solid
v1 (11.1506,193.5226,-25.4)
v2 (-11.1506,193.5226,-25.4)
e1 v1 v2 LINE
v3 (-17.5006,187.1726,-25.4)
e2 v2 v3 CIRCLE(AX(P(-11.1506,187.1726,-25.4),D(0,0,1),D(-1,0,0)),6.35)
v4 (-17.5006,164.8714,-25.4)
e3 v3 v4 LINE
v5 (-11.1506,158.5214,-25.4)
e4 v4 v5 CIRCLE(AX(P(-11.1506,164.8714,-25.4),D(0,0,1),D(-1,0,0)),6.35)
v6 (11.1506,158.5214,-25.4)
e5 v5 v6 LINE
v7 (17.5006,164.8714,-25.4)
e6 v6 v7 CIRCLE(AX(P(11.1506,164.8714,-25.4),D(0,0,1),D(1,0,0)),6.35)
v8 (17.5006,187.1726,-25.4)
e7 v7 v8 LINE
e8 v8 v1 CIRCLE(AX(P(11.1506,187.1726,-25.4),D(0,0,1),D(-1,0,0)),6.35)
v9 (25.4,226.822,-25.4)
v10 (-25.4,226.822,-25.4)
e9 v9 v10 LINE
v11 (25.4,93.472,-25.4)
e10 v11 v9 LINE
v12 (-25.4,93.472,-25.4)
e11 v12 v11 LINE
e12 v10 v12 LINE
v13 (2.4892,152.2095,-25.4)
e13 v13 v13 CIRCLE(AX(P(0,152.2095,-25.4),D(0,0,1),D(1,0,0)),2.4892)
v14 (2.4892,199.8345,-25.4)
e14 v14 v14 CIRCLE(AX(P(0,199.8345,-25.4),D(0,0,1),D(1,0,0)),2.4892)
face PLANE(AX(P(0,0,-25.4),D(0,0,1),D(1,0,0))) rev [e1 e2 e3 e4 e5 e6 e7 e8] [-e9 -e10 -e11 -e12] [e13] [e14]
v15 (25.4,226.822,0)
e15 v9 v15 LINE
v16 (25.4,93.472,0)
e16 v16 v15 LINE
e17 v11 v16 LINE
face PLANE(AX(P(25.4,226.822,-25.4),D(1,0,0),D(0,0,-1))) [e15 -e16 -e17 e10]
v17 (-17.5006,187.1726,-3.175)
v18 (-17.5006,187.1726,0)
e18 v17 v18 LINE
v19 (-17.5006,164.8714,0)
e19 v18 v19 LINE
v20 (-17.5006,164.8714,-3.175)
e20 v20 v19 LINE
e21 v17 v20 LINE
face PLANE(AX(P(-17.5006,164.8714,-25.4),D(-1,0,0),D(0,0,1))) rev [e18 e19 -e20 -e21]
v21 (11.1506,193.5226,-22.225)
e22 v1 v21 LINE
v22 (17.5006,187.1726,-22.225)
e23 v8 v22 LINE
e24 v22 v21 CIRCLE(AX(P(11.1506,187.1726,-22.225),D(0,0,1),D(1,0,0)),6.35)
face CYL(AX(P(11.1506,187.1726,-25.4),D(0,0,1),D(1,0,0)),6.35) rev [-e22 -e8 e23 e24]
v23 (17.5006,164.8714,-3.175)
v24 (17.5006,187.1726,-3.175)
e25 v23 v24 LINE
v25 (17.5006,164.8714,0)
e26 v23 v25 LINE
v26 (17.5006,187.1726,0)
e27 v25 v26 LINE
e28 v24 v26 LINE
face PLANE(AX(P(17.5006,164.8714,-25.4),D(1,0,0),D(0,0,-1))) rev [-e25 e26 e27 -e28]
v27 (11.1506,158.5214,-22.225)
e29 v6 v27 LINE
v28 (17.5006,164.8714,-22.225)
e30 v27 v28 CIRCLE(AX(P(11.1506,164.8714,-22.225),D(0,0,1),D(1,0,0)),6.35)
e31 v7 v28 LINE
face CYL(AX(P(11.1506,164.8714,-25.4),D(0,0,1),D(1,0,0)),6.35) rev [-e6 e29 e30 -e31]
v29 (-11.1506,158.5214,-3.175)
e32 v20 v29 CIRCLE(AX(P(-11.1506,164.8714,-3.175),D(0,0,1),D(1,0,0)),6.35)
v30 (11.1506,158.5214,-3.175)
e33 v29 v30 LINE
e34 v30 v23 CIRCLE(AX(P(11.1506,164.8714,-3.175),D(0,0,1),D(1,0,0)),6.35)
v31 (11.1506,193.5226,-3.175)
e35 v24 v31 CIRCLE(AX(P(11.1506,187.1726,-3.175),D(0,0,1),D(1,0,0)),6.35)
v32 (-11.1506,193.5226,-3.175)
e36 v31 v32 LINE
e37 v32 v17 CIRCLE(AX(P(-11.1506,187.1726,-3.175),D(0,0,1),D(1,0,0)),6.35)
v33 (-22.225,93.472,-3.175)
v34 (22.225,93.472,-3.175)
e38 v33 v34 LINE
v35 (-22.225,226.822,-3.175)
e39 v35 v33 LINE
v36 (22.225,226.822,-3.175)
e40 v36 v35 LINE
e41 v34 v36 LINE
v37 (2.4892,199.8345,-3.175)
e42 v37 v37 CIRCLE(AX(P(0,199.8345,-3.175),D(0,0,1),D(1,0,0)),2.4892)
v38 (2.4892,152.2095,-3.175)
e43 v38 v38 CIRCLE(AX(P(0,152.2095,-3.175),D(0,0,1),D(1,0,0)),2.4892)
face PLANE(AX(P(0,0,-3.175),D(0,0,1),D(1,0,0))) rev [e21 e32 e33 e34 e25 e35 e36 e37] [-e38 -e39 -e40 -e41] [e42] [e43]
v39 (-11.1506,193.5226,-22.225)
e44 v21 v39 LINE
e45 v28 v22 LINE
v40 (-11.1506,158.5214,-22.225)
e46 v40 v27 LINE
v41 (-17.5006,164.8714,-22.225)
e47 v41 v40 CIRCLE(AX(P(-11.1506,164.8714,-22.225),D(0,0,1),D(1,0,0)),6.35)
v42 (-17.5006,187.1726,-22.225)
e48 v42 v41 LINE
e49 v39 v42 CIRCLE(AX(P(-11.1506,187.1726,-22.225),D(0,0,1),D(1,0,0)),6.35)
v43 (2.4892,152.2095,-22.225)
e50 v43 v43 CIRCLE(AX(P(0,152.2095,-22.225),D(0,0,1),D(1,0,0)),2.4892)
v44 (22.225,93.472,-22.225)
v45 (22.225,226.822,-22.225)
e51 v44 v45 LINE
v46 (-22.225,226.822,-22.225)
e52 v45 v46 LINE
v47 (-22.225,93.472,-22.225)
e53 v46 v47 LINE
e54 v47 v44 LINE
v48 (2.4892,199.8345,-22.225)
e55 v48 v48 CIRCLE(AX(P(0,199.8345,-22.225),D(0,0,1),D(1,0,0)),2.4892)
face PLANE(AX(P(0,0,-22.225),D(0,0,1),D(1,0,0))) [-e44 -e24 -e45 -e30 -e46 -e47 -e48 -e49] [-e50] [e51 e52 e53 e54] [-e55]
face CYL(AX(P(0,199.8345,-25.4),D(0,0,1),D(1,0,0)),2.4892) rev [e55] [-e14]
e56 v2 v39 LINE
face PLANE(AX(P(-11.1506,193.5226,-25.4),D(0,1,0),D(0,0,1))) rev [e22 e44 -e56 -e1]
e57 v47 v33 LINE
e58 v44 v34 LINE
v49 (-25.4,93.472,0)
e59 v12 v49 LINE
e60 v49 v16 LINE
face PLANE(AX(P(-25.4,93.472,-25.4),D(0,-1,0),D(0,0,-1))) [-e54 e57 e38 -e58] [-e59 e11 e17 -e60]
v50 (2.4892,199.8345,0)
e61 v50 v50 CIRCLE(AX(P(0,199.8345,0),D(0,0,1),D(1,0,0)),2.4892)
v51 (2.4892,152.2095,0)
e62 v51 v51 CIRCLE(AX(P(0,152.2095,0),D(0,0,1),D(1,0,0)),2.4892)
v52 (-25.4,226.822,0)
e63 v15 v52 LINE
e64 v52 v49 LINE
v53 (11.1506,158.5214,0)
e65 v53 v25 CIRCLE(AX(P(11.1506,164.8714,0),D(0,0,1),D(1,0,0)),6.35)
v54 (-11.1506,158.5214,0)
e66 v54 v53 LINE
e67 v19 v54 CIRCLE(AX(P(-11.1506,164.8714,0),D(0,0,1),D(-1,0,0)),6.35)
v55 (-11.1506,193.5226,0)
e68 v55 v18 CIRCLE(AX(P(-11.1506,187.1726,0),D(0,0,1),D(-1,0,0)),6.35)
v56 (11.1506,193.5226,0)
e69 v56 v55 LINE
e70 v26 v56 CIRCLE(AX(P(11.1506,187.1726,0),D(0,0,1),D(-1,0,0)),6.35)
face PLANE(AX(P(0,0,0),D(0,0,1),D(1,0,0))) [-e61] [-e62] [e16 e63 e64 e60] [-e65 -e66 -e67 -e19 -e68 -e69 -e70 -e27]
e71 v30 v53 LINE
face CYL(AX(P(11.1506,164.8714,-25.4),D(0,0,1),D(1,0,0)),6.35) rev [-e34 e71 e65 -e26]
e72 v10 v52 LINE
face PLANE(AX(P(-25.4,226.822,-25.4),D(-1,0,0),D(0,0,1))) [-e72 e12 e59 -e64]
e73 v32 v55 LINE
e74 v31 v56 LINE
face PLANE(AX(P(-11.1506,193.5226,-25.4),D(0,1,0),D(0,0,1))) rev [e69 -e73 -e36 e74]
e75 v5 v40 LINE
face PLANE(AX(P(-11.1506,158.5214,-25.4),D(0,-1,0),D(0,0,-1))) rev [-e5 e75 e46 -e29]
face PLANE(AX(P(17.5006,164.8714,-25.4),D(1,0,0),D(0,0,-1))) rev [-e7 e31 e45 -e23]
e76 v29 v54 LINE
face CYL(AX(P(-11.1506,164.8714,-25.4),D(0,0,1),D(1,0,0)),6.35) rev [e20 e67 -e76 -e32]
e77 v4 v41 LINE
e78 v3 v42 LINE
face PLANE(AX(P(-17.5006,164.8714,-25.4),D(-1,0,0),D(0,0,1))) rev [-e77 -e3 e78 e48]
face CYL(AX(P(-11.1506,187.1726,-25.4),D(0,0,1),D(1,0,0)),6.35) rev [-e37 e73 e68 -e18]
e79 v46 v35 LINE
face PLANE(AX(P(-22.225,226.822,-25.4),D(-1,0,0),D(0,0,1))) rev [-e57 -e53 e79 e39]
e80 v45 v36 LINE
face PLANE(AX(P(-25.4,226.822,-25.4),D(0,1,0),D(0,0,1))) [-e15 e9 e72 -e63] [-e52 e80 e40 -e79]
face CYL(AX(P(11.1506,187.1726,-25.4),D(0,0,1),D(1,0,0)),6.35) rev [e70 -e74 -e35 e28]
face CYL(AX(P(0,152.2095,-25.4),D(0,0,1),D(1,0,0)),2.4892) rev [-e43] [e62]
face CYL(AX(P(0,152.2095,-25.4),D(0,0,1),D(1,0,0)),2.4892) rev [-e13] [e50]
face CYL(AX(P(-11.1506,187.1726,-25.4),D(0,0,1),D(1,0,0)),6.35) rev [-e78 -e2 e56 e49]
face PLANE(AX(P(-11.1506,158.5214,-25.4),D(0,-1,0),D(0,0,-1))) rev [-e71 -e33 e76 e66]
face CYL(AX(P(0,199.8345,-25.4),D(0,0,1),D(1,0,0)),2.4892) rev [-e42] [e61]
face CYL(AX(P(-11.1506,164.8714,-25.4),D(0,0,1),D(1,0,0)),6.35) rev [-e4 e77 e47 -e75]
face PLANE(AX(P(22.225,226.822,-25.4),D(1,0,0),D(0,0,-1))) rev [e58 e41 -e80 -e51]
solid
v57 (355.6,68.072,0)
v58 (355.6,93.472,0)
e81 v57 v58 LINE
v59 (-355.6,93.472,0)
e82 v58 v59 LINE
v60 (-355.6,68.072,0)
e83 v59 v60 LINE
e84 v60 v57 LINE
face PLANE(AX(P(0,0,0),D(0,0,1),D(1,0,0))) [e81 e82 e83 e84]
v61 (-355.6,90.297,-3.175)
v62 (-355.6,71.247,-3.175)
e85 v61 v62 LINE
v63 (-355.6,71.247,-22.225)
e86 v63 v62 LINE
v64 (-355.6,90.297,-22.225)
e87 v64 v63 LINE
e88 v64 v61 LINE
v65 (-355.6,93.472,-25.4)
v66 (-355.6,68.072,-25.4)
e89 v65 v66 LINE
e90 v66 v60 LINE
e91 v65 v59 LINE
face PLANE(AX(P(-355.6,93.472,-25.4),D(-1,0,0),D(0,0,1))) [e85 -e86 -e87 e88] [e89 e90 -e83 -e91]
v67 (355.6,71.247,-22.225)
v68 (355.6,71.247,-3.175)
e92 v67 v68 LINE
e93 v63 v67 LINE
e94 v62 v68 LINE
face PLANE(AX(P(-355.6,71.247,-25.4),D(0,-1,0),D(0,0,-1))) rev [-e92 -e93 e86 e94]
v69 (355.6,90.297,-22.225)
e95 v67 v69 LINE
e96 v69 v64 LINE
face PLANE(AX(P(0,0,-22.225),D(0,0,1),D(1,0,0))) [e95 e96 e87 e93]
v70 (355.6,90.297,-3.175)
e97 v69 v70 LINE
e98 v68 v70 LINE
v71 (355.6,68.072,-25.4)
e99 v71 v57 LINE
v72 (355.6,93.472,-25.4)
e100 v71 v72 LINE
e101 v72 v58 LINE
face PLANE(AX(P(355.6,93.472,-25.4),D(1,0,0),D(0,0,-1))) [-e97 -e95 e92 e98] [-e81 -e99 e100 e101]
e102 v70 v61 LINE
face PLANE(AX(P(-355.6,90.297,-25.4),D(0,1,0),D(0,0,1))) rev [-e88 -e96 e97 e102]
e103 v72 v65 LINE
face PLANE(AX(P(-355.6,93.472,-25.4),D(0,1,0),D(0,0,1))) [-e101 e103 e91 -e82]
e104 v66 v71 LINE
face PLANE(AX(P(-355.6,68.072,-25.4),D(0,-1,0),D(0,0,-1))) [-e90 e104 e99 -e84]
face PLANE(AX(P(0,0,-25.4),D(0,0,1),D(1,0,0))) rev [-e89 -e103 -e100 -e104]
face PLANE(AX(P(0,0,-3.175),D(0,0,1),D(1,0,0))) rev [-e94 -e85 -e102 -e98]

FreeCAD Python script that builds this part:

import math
import FreeCAD as App
import Part
import Sketcher
from FreeCAD import Vector
Q = App.Units.Quantity


def faces_at(feature, points):
    """Names of the faces that lie closest to the given points."""
    faces = feature.Shape.Faces
    near = lambda p: min(range(len(faces)), key=lambda i: faces[i].distToShape(Part.Vertex(*p))[0])
    return sorted({f"Face{near(p) + 1}" for p in points})


def add_polygon(sketch, points):
    """Adds a closed chain of lines whose ends are joined by coincident constraints."""
    first, n = sketch.GeometryCount, len(points)
    for a, b in zip(points, points[1:] + points[:1]):
        sketch.addGeometry(Part.LineSegment(App.Vector(*a, 0), App.Vector(*b, 0)), False)
    for i in range(n):
        sketch.addConstraint(Sketcher.Constraint("Coincident", first + i, 2, first + (i + 1) % n, 1))

doc = App.newDocument("Part")
body = doc.addObject("PartDesign::Body", "Body")

sketch1 = body.newObject("Sketcher::SketchObject", "Sketch")
sketch1.AttachmentSupport = (doc.getObject("XY_Plane"), [""])
sketch1.MapMode = "FlatFace"
add_polygon(sketch1, [(-355.6, 93.472), (-355.6, 68.072), (355.6, 68.072), (355.6, 93.472)])
sketch1.addConstraint([
    Sketcher.Constraint("Vertical", 0),
    Sketcher.Constraint("Horizontal", 1),
    Sketcher.Constraint("Vertical", 2),
    Sketcher.Constraint("Horizontal", 3),
    Sketcher.Constraint("DistanceX", 1, 1, 1, 2, Q("28 in")),
    Sketcher.Constraint("DistanceY", 0, 2, 0, 1, Q("1 in")),
    Sketcher.Constraint("DistanceX", 0, 2, -1, 1, Q("14 in")),
    Sketcher.Constraint("DistanceY", -1, 1, 0, 2, Q("2.68 in")),
])
pad1 = body.newObject("PartDesign::Pad", "Pad")
pad1.Profile = sketch1
pad1.Length = Q("1 in")
pad1.Reversed = True
doc.recompute()

thickness = body.newObject("PartDesign::Thickness", "Thickness")
thickness.Base = (pad1, faces_at(pad1, [(355.6, 80.772, -12.7), (-355.6, 80.772, -12.7)]))
thickness.Value = Q("0.125 in")
thickness.Reversed = True
thickness.Join = "Intersection"
body2 = doc.addObject("PartDesign::Body", "Body001")

sketch2 = body2.newObject("Sketcher::SketchObject", "Sketch001")
sketch2.AttachmentSupport = (doc.getObject("XY_Plane001"), [""])
sketch2.MapMode = "FlatFace"
add_polygon(sketch2, [(-25.4, 226.822), (-25.4, 93.472), (25.4, 93.472), (25.4, 226.822)])
sketch2.addConstraint([
    Sketcher.Constraint("Vertical", 0),
    Sketcher.Constraint("Horizontal", 1),
    Sketcher.Constraint("Vertical", 2),
    Sketcher.Constraint("Horizontal", 3),
    Sketcher.Constraint("DistanceX", 1, 1, 1, 2, Q("2 in")),
    Sketcher.Constraint("DistanceX", 0, 2, -1, 1, Q("1 in")),
    Sketcher.Constraint("DistanceY", 0, 2, 0, 1, Q("5.25 in")),
    Sketcher.Constraint("DistanceY", -1, 1, 0, 2, Q("3.68 in")),
])
pad2 = body2.newObject("PartDesign::Pad", "Pad001")
pad2.Profile = sketch2
pad2.Length = Q("1 in")
pad2.Reversed = True
doc.recompute()

thickness2 = body2.newObject("PartDesign::Thickness", "Thickness001")
thickness2.Base = (pad2, faces_at(pad2, [(0, 226.822, -12.7), (0, 93.472, -12.7)]))
thickness2.Value = Q("0.125 in")
thickness2.Reversed = True
thickness2.Join = "Intersection"

sketch3 = body2.newObject("Sketcher::SketchObject", "Sketch002")
sketch3.AttachmentSupport = (doc.getObject("XY_Plane001"), [""])
sketch3.MapMode = "FlatFace"
sketch3.addGeometry([
    Part.Circle(Vector(0, 199.8345, 0), Vector(0, 0, 1), 2.4892),
    Part.Circle(Vector(0, 152.2095, 0), Vector(0, 0, 1), 2.4892),
    Part.LineSegment(Vector(-11.1506, 158.5214, 0), Vector(11.1506, 158.5214, 0)),
    Part.ArcOfCircle(Part.Circle(Vector(11.1506, 164.8714, 0), Vector(0, 0, 1), 6.35), math.radians(-90), math.radians(0)),
    Part.LineSegment(Vector(17.5006, 164.8714, 0), Vector(17.5006, 187.1726, 0)),
    Part.ArcOfCircle(Part.Circle(Vector(11.1506, 187.1726, 0), Vector(0, 0, 1), 6.35), math.radians(0), math.radians(90)),
    Part.LineSegment(Vector(11.1506, 193.5226, 0), Vector(-11.1506, 193.5226, 0)),
    Part.ArcOfCircle(Part.Circle(Vector(-11.1506, 187.1726, 0), Vector(0, 0, 1), 6.35), math.radians(90), math.radians(180)),
    Part.LineSegment(Vector(-17.5006, 187.1726, 0), Vector(-17.5006, 164.8714, 0)),
    Part.ArcOfCircle(Part.Circle(Vector(-11.1506, 164.8714, 0), Vector(0, 0, 1), 6.35), math.radians(180), math.radians(270)),
], False)
sketch3.addConstraint([
    Sketcher.Constraint("Tangent", 2, 2, 3, 1),
    Sketcher.Constraint("Tangent", 3, 2, 4, 1),
    Sketcher.Constraint("Tangent", 4, 2, 5, 1),
    Sketcher.Constraint("Tangent", 5, 2, 6, 1),
    Sketcher.Constraint("Tangent", 6, 2, 7, 1),
    Sketcher.Constraint("Tangent", 7, 2, 8, 1),
    Sketcher.Constraint("Tangent", 8, 2, 9, 1),
    Sketcher.Constraint("Tangent", 9, 2, 2, 1),
    Sketcher.Constraint("Horizontal", 2),
    Sketcher.Constraint("Vertical", 4),
    Sketcher.Constraint("Horizontal", 6),
    Sketcher.Constraint("Vertical", 8),
    Sketcher.Constraint("Equal", 0, 1),
    Sketcher.Constraint("Equal", 3, 5),
    Sketcher.Constraint("Equal", 5, 7),
    Sketcher.Constraint("Equal", 7, 9),
    Sketcher.Constraint("PointOnObject", 0, 3, -2),
    Sketcher.Constraint("PointOnObject", 1, 3, -2),
    Sketcher.Constraint("Equal", 6, 4),
    Sketcher.Constraint("Radius", 3, Q("0.25 in")),
    Sketcher.Constraint("Diameter", 0, Q("0.196 in")),
    Sketcher.Constraint("DistanceX", 2, 1, 2, 2, Q("0.878 in")),
    Sketcher.Constraint("DistanceX", -1, 1, 3, 3, Q("0.439 in")),
    Sketcher.Constraint("DistanceY", -1, 1, 3, 3, Q("6.491 in")),
    Sketcher.Constraint("DistanceY", 1, 3, 0, 3, Q("1.875 in")),
    Sketcher.Constraint("DistanceY", -1, 1, 0, 3, Q("7.8675 in")),
])
pocket1 = body2.newObject("PartDesign::Pocket", "Pocket")
pocket1.Profile = sketch3
pocket1.Type = "ThroughAll"

doc.recompute()
